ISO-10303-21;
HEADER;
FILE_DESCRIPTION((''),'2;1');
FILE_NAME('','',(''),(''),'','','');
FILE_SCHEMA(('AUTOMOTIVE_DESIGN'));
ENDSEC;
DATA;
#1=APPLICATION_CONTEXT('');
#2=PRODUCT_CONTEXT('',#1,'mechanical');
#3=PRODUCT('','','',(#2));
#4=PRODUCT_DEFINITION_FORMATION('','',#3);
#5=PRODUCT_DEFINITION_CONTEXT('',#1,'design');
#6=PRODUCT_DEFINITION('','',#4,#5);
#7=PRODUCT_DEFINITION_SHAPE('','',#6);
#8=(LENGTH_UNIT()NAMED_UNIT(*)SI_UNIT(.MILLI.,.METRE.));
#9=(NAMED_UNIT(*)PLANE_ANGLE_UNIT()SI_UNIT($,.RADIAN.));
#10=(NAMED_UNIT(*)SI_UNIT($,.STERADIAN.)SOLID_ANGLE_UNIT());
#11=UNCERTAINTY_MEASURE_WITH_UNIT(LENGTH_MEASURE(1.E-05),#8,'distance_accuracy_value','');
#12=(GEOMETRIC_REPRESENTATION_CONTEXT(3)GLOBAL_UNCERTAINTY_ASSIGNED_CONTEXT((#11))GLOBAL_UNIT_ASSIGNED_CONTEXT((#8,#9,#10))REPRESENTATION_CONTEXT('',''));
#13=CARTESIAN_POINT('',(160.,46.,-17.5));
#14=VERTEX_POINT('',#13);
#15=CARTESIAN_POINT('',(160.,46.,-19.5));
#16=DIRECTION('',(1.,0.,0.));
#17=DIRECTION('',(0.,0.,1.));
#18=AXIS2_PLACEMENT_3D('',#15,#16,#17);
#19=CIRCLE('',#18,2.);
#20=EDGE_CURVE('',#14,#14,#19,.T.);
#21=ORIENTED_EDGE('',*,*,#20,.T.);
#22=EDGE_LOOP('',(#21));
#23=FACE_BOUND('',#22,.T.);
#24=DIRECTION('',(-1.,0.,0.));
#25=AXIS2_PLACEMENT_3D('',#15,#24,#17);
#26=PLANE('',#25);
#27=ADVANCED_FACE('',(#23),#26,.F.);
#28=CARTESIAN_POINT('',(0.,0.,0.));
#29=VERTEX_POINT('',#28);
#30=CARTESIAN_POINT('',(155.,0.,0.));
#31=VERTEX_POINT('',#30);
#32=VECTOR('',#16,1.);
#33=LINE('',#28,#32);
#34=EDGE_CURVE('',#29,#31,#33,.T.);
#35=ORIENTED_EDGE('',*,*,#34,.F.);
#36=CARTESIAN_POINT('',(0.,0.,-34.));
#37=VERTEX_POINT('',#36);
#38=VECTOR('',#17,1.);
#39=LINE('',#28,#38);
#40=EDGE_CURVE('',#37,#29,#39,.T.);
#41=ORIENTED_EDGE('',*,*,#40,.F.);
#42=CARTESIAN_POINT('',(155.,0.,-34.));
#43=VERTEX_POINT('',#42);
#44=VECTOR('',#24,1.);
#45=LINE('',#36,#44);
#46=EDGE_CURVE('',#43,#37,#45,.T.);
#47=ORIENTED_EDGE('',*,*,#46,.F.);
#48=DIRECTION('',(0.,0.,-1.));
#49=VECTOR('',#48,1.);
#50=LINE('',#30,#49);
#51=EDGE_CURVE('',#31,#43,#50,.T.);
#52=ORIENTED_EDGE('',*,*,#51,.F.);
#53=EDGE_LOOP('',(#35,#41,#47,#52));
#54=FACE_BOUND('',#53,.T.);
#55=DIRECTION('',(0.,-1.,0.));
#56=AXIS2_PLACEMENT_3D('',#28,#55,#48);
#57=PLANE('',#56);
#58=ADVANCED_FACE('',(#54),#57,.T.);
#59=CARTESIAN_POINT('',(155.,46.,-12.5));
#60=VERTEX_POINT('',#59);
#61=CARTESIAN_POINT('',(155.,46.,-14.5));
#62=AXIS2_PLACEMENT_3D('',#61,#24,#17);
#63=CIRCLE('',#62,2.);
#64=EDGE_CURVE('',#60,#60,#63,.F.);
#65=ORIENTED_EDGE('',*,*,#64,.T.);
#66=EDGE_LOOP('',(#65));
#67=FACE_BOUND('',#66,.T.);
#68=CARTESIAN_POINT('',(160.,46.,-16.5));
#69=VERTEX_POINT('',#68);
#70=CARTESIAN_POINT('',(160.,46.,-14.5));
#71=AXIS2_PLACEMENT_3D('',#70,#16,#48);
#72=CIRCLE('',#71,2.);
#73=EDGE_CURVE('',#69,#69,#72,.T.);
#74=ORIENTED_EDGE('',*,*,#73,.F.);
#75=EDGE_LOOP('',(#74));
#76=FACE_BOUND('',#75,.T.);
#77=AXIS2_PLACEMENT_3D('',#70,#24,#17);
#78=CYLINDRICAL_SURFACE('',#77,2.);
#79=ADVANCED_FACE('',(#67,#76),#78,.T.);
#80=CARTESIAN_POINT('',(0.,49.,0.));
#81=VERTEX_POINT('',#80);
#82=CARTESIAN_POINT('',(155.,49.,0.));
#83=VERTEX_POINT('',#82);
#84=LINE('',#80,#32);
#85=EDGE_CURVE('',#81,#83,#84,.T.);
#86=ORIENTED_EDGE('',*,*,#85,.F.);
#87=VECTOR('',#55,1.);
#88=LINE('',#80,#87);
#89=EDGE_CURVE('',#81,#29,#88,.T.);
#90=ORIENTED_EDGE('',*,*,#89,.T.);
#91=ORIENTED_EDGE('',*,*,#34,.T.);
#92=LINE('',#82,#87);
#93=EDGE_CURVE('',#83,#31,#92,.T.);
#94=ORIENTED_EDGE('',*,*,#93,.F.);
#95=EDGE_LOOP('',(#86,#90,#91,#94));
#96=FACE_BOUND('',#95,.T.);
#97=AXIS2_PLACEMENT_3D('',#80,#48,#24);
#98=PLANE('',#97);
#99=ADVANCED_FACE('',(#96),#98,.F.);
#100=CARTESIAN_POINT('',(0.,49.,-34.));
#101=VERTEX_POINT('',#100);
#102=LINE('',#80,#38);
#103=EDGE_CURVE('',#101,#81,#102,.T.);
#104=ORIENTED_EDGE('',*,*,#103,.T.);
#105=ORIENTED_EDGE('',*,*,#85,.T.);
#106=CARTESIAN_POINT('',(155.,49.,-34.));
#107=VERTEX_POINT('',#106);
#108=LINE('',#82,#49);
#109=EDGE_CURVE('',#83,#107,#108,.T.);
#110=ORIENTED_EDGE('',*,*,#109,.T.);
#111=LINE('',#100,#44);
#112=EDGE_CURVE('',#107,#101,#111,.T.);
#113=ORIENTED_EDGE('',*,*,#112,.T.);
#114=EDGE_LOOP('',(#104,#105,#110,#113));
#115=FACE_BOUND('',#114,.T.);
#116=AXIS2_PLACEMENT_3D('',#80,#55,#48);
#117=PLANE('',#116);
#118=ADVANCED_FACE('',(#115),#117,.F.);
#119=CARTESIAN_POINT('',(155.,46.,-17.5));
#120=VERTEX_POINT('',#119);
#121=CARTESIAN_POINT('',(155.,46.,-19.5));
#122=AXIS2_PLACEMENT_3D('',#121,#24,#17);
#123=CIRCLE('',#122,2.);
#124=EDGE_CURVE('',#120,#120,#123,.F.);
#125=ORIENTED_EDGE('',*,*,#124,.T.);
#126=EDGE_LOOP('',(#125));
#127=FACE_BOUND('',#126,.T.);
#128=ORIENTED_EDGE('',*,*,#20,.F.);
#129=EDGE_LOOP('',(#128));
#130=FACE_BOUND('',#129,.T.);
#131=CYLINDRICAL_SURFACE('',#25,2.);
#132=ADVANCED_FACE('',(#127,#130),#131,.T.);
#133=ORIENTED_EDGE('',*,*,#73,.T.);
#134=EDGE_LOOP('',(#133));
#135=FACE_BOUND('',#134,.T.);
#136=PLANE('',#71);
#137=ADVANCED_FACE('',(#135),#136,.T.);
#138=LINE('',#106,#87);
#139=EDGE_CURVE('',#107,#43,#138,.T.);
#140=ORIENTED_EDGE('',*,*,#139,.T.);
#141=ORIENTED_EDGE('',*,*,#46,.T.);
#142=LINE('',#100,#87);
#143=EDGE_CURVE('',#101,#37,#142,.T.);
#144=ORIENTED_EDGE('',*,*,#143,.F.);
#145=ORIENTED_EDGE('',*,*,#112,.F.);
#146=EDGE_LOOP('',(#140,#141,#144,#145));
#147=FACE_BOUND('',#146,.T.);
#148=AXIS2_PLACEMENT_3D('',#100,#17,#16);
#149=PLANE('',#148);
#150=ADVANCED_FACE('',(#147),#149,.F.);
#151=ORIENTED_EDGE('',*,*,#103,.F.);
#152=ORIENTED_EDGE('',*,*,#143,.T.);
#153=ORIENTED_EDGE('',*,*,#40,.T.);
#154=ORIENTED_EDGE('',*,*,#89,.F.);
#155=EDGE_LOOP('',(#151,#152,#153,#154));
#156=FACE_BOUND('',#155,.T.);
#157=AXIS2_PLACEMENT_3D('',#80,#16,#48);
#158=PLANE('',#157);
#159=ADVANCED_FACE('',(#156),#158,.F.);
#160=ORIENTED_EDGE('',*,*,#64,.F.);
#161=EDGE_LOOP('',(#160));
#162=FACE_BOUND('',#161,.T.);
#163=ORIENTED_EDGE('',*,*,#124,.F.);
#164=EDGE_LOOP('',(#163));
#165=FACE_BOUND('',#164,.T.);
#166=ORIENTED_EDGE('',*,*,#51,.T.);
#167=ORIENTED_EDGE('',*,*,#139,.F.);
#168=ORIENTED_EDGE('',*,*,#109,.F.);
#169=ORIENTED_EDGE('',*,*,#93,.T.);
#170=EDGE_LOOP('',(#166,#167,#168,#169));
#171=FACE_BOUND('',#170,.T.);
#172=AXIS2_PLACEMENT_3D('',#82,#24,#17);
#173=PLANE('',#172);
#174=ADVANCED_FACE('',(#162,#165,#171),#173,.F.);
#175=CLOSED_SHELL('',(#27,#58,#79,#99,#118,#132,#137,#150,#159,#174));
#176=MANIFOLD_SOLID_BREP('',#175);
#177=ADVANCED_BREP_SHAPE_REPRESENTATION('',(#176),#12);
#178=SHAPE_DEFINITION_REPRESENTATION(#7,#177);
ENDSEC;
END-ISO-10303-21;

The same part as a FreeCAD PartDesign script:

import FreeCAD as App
import Part
import Sketcher

V = App.Vector

doc = App.newDocument("Part")
params = doc.addObject("Spreadsheet::Sheet", "Params")
for row, (alias, value) in enumerate([
    ("sketch1_width", "155 mm"),
    ("sketch1_height", "34 mm"),
    ("pad1_length", "49 mm"),
    ("sketch2_diameter", "4 mm"),
    ("pad2_length", "5 mm"),
], start=1):
    params.set(f"A{row}", alias)
    params.set(f"B{row}", "=" + value)
    params.setAlias(f"B{row}", alias)

body = doc.addObject("PartDesign::Body", "Body")

sketch1 = body.newObject("Sketcher::SketchObject", "Sketch")
sketch1.AttachmentSupport = (doc.getObject("XZ_Plane"), [""])
sketch1.MapMode = "FlatFace"
sketch1.addGeometry(Part.LineSegment(V(0, -34, 0), V(0, 0, 0)), False)
sketch1.addGeometry(Part.LineSegment(V(0, 0, 0), V(155, 0, 0)), False)
sketch1.addGeometry(Part.LineSegment(V(155, 0, 0), V(155, -34, 0)), False)
sketch1.addGeometry(Part.LineSegment(V(155, -34, 0), V(0, -34, 0)), False)
sketch1.addConstraint(Sketcher.Constraint("Coincident", 0, 2, 1, 1))
sketch1.addConstraint(Sketcher.Constraint("Coincident", 1, 2, 2, 1))
sketch1.addConstraint(Sketcher.Constraint("Coincident", 2, 2, 3, 1))
sketch1.addConstraint(Sketcher.Constraint("Coincident", 3, 2, 0, 1))
sketch1.addConstraint(Sketcher.Constraint("Vertical", 0))
sketch1.addConstraint(Sketcher.Constraint("Horizontal", 1))
sketch1.addConstraint(Sketcher.Constraint("Vertical", 2))
sketch1.addConstraint(Sketcher.Constraint("Horizontal", 3))
sketch1.addConstraint(Sketcher.Constraint("Coincident", 0, 2, -1, 1))
sketch1.addConstraint(Sketcher.Constraint("DistanceX", 1, 1, 1, 2, 155.0))
sketch1.addConstraint(Sketcher.Constraint("DistanceY", 0, 1, 0, 2, 34.0))
sketch1.setExpression("Constraints[9]", "Params.sketch1_width")
sketch1.setExpression("Constraints[10]", "Params.sketch1_height")
pad1 = body.newObject("PartDesign::Pad", "Pad")
pad1.Profile = sketch1
pad1.setExpression("Length", "Params.pad1_length")
pad1.Reversed = True

sketch2 = body.newObject("Sketcher::SketchObject", "Sketch001")
sketch2.AttachmentSupport = (doc.getObject("YZ_Plane"), [""])
sketch2.MapMode = "FlatFace"
sketch2.AttachmentOffset = App.Placement(V(0, 0, 155), App.Rotation())
sketch2.addGeometry(Part.Circle(V(46, -14.5, 0), V(0, 0, 1), 2), False)
sketch2.addGeometry(Part.Circle(V(46, -19.5, 0), V(0, 0, 1), 2), False)
sketch2.addConstraint(Sketcher.Constraint("Equal", 0, 1))
sketch2.addConstraint(Sketcher.Constraint("Vertical", 0, 3, 1, 3))
sketch2.addConstraint(Sketcher.Constraint("Diameter", 0, 4.0))
sketch2.addConstraint(Sketcher.Constraint("DistanceX", -1, 1, 0, 3, 46.0))
sketch2.addConstraint(Sketcher.Constraint("DistanceY", 1, 3, 0, 3, 5.0))
sketch2.addConstraint(Sketcher.Constraint("DistanceY", 0, 3, -1, 1, 14.5))
sketch2.setExpression("Constraints[2]", "Params.sketch2_diameter")
pad2 = body.newObject("PartDesign::Pad", "Pad001")
pad2.Profile = sketch2
pad2.setExpression("Length", "Params.pad2_length")

doc.recompute()
